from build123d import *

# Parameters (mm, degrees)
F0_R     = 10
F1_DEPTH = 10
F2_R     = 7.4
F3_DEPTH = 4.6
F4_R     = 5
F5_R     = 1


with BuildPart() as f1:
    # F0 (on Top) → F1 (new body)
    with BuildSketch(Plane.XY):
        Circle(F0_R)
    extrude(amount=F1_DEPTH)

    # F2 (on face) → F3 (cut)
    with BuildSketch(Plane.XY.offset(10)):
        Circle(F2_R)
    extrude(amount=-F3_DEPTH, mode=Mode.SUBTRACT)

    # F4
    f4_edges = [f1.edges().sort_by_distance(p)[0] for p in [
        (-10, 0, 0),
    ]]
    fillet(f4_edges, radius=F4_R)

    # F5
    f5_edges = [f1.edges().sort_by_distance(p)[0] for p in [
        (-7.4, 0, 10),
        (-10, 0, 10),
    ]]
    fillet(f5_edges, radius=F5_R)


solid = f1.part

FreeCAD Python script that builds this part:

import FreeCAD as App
import Part
import Sketcher

V = App.Vector
Q = App.Units.Quantity


def edges_at(feature, points):
    """Names of the edges that pass closest to the given points."""
    edges = feature.Shape.Edges
    near = lambda p: min(range(len(edges)), key=lambda i: edges[i].distToShape(Part.Vertex(*p))[0])
    return sorted({f"Edge{near(p) + 1}" for p in points})

doc = App.newDocument("Part")
body = doc.addObject("PartDesign::Body", "Body")

# Sketch on XY plane
sketch1 = body.newObject("Sketcher::SketchObject", "Sketch")
sketch1.AttachmentSupport = (doc.getObject("XY_Plane"), [""])
sketch1.MapMode = "FlatFace"
sketch1.addGeometry(Part.Circle(V(0, 0, 0), V(0, 0, 1), 10), False)
sketch1.addConstraint(Sketcher.Constraint("Coincident", 0, 3, -1, 1))
sketch1.addConstraint(Sketcher.Constraint("Diameter", 0, Q("20 mm")))
pad1 = body.newObject("PartDesign::Pad", "Pad")
pad1.Profile = sketch1
pad1.Length = 10

# Sketch on XY plane
sketch2 = body.newObject("Sketcher::SketchObject", "Sketch001")
sketch2.AttachmentSupport = (doc.getObject("XY_Plane"), [""])
sketch2.MapMode = "FlatFace"
sketch2.AttachmentOffset = App.Placement(V(0, 0, 10), App.Rotation())
sketch2.addGeometry(Part.Circle(V(0, 0, 0), V(0, 0, 1), 7), False)
sketch2.addConstraint(Sketcher.Constraint("Coincident", 0, 3, -1, 1))
sketch2.addConstraint(Sketcher.Constraint("Diameter", 0, Q("14.8 mm")))
pocket1 = body.newObject("PartDesign::Pocket", "Pocket")
pocket1.Profile = sketch2
pocket1.Length = 4.6
doc.recompute()

fillet = body.newObject("PartDesign::Fillet", "Fillet")
fillet.Base = (pocket1, edges_at(pocket1, [(-10, 0, 0)]))
fillet.Radius = 5
doc.recompute()

fillet2 = body.newObject("PartDesign::Fillet", "Fillet001")
fillet2.Base = (fillet, edges_at(fillet, [(-7.4, 0, 10), (-10, 0, 10)]))
fillet2.Radius = 1

doc.recompute()
